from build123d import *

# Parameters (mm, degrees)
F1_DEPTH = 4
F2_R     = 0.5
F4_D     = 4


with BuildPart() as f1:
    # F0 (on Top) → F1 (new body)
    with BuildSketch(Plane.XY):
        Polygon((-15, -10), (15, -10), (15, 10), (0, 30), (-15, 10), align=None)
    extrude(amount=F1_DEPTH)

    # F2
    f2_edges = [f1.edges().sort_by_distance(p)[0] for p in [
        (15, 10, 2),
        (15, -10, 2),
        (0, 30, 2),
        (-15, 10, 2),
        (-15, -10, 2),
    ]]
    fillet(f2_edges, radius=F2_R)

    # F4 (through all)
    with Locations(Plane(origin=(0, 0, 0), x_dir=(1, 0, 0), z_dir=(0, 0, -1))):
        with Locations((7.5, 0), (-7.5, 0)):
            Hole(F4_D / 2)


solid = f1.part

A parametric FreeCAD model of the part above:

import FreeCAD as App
import Part
import Sketcher


def edges_at(feature, points):
    """Names of the edges that pass closest to the given points."""
    edges = feature.Shape.Edges
    near = lambda p: min(range(len(edges)), key=lambda i: edges[i].distToShape(Part.Vertex(*p))[0])
    return sorted({f"Edge{near(p) + 1}" for p in points})


def add_polygon(sketch, points):
    """Adds a closed chain of lines whose ends are joined by coincident constraints."""
    first, n = sketch.GeometryCount, len(points)
    for a, b in zip(points, points[1:] + points[:1]):
        sketch.addGeometry(Part.LineSegment(App.Vector(*a, 0), App.Vector(*b, 0)), False)
    for i in range(n):
        sketch.addConstraint(Sketcher.Constraint("Coincident", first + i, 2, first + (i + 1) % n, 1))

doc = App.newDocument("Part")
body = doc.addObject("PartDesign::Body", "Body")

# Sketch on XY plane
sketch1 = doc.addObject("Sketcher::SketchObject", "Sketch")
body.addObject(sketch1)
sketch1.AttachmentSupport = (doc.XY_Plane, [""])
sketch1.MapMode = "FlatFace"
add_polygon(sketch1, [(-15, -10), (15, -10), (15, 10), (0, 30), (-15, 10)])  # lines 0-4
sketch1.addConstraint([
    Sketcher.Constraint("Horizontal", 0),
    Sketcher.Constraint("Vertical", 1),
    Sketcher.Constraint("Vertical", 4),
    Sketcher.Constraint("Symmetric", 0, 2, 3, 2, -1, 1),
    Sketcher.Constraint("PointOnObject", 2, 2, -2),
    Sketcher.Constraint("Horizontal", 1, 2, 3, 2),
    Sketcher.Constraint("DistanceX", 0, 1, 0, 2, 30.0),
    Sketcher.Constraint("DistanceY", 1, 1, 1, 2, 20.0),
    Sketcher.Constraint("Distance", 2, 25.0),
])
pad1 = doc.addObject("PartDesign::Pad", "Pad")
body.addObject(pad1)
pad1.Profile = sketch1
pad1.Length = 4
doc.recompute()

fillet = doc.addObject("PartDesign::Fillet", "Fillet")
body.addObject(fillet)
fillet.Base = (pad1, edges_at(pad1, [
    (15, 10, 2),
    (15, -10, 2),
    (0, 30, 2),
    (-15, 10, 2),
    (-15, -10, 2),
]))
fillet.Radius = 0.5

# Sketch on XY plane
sketch2 = doc.addObject("Sketcher::SketchObject", "Sketch001")
body.addObject(sketch2)
sketch2.AttachmentSupport = (doc.XY_Plane, [""])
sketch2.MapMode = "FlatFace"
sketch2.addGeometry([
    Part.Circle(App.Vector(7.5, 0, 0), App.Vector(0, 0, 1), 2),
    Part.Circle(App.Vector(-7.5, 0, 0), App.Vector(0, 0, 1), 2),
], False)
sketch2.addConstraint([
    Sketcher.Constraint("Equal", 0, 1),
    Sketcher.Constraint("Symmetric", 0, 3, 1, 3, -1, 1),
    Sketcher.Constraint("PointOnObject", 0, 3, -1),
    Sketcher.Constraint("Diameter", 0, 4.0),
    Sketcher.Constraint("DistanceX", 1, 3, 0, 3, 15.0),
])
doc.recompute()
hole = doc.addObject("PartDesign::Hole", "Hole")
body.addObject(hole)
hole.Profile = sketch2
hole.ThreadType = "None"
hole.Diameter = 4
hole.DepthType = "ThroughAll"
hole.Reversed = True

doc.recompute()
